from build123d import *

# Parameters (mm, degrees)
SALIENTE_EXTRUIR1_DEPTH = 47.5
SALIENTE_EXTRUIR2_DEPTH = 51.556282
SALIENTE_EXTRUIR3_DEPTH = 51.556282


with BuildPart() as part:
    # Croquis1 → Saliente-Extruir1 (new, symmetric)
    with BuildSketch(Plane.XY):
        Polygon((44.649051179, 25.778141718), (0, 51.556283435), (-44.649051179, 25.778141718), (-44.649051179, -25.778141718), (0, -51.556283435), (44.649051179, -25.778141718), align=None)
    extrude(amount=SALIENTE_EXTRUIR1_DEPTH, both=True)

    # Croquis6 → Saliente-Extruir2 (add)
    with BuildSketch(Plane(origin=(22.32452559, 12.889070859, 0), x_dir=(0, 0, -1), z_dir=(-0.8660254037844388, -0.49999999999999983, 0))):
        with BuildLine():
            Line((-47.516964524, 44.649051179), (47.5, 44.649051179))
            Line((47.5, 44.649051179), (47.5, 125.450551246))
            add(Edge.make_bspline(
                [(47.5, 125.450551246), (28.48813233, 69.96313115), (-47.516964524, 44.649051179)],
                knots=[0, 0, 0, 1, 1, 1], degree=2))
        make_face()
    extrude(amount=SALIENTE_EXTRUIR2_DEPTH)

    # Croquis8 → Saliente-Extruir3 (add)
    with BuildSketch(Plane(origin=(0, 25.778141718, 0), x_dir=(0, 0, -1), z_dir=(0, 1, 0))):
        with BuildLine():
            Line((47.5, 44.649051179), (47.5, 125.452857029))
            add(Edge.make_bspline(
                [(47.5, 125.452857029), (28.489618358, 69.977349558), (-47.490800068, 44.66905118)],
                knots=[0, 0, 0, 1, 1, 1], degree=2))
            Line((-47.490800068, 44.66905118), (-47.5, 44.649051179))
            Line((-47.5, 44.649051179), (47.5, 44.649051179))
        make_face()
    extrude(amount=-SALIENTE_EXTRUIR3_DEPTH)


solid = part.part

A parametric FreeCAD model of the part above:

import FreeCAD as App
import Part
import Sketcher
Q = App.Units.Quantity


def add_polygon(sketch, points):
    """Adds a closed chain of lines whose ends are joined by coincident constraints."""
    first, n = sketch.GeometryCount, len(points)
    for a, b in zip(points, points[1:] + points[:1]):
        sketch.addGeometry(Part.LineSegment(App.Vector(*a, 0), App.Vector(*b, 0)), False)
    for i in range(n):
        sketch.addConstraint(Sketcher.Constraint("Coincident", first + i, 2, first + (i + 1) % n, 1))

doc = App.newDocument("Part")
body = doc.addObject("PartDesign::Body", "Body")

# Sketch on XY plane
sketch1 = body.newObject("Sketcher::SketchObject", "Sketch")
sketch1.AttachmentSupport = (doc.getObject("XY_Plane"), [""])
sketch1.MapMode = "FlatFace"
add_polygon(sketch1, [(45, 26), (0, 52), (-45, 26), (-45, -26), (0, -52), (45, -26)])  # lines 0-5
sketch1.addConstraint([
    Sketcher.Constraint("Vertical", 2),
    Sketcher.Constraint("Vertical", 5),
    Sketcher.Constraint("Symmetric", 0, 2, 3, 2, -1, 1),
    Sketcher.Constraint("Symmetric", 1, 2, 4, 2, -1, 1),
    Sketcher.Constraint("PointOnObject", 0, 2, -2),
    Sketcher.Constraint("Parallel", 0, 3),
    Sketcher.Constraint("Horizontal", 2, 2, 4, 2),
    Sketcher.Constraint("Angle", 0, Q("150 deg")),
    Sketcher.Constraint("DistanceY", 2, 2, 2, 1, Q("51.556283 mm")),
    Sketcher.Constraint("DistanceX", 1, 2, -1, 1, Q("44.649051 mm")),
])
pad1 = body.newObject("PartDesign::Pad", "Pad")
pad1.Profile = sketch1
pad1.Length = 95
pad1.Midplane = True

# Sketch on an angled plane
sketch2 = body.newObject("Sketcher::SketchObject", "Sketch001")
sketch2.Placement = App.Placement(App.Vector(22.324526, 12.889071, 0), App.Rotation(App.Vector(0, 0, -1), App.Vector(0.5, -0.866025404, 0), App.Vector(-0.866025404, -0.5, 0), "ZXY"))
sketch2.addGeometry([
    Part.LineSegment(App.Vector(-47.516965, 44.649051, 0), App.Vector(47.5, 44.649051, 0)),
    Part.LineSegment(App.Vector(47.5, 44.649051, 0), App.Vector(47.5, 125.450551, 0)),
    Part.BSplineCurve([App.Vector(47.5, 125.450551, 0), App.Vector(28.488132, 69.963131, 0), App.Vector(-47.516965, 44.649051, 0)], [3, 3], [0, 1], False, 2, [1, 1, 1], False),
], False)
sketch2.addConstraint([
    Sketcher.Constraint("Block", 2),
    Sketcher.Constraint("Coincident", 0, 2, 1, 1),
    Sketcher.Constraint("Coincident", 1, 2, 2, 1),
    Sketcher.Constraint("Coincident", 2, 2, 0, 1),
    Sketcher.Constraint("Horizontal", 0),
    Sketcher.Constraint("Vertical", 1),
])
pad2 = body.newObject("PartDesign::Pad", "Pad001")
pad2.Profile = sketch2
pad2.Length = 51.556282

# Sketch on XZ plane
sketch3 = body.newObject("Sketcher::SketchObject", "Sketch002")
sketch3.AttachmentSupport = (doc.getObject("XZ_Plane"), [""])
sketch3.MapMode = "FlatFace"
sketch3.AttachmentOffset = App.Placement(App.Vector(0, 0, -25.778142), App.Rotation())
sketch3.addGeometry([
    Part.LineSegment(App.Vector(-44.649051, -47.5, 0), App.Vector(-125.452857, -47.5, 0)),
    Part.BSplineCurve([App.Vector(-125.452857, -47.5, 0), App.Vector(-69.97735, -28.489618, 0), App.Vector(-44.669051, 47.4908, 0)], [3, 3], [0, 1], False, 2, [1, 1, 1], False),
    Part.LineSegment(App.Vector(-44.669051, 47.4908, 0), App.Vector(-44.649051, 47.5, 0)),
    Part.LineSegment(App.Vector(-44.649051, 47.5, 0), App.Vector(-44.649051, -47.5, 0)),
], False)
sketch3.addConstraint([
    Sketcher.Constraint("Block", 1),
    Sketcher.Constraint("Coincident", 0, 2, 1, 1),
    Sketcher.Constraint("Coincident", 1, 2, 2, 1),
    Sketcher.Constraint("Coincident", 2, 2, 3, 1),
    Sketcher.Constraint("Coincident", 3, 2, 0, 1),
    Sketcher.Constraint("Horizontal", 0),
    Sketcher.Constraint("Vertical", 3),
    Sketcher.Constraint("DistanceY", 3, 2, 3, 1, Q("95 mm")),
    Sketcher.Constraint("DistanceX", 0, 2, 0, 1, Q("80.803806 mm")),
])
pad3 = body.newObject("PartDesign::Pad", "Pad002")
pad3.Profile = sketch3
pad3.Length = 51.556282

doc.recompute()
